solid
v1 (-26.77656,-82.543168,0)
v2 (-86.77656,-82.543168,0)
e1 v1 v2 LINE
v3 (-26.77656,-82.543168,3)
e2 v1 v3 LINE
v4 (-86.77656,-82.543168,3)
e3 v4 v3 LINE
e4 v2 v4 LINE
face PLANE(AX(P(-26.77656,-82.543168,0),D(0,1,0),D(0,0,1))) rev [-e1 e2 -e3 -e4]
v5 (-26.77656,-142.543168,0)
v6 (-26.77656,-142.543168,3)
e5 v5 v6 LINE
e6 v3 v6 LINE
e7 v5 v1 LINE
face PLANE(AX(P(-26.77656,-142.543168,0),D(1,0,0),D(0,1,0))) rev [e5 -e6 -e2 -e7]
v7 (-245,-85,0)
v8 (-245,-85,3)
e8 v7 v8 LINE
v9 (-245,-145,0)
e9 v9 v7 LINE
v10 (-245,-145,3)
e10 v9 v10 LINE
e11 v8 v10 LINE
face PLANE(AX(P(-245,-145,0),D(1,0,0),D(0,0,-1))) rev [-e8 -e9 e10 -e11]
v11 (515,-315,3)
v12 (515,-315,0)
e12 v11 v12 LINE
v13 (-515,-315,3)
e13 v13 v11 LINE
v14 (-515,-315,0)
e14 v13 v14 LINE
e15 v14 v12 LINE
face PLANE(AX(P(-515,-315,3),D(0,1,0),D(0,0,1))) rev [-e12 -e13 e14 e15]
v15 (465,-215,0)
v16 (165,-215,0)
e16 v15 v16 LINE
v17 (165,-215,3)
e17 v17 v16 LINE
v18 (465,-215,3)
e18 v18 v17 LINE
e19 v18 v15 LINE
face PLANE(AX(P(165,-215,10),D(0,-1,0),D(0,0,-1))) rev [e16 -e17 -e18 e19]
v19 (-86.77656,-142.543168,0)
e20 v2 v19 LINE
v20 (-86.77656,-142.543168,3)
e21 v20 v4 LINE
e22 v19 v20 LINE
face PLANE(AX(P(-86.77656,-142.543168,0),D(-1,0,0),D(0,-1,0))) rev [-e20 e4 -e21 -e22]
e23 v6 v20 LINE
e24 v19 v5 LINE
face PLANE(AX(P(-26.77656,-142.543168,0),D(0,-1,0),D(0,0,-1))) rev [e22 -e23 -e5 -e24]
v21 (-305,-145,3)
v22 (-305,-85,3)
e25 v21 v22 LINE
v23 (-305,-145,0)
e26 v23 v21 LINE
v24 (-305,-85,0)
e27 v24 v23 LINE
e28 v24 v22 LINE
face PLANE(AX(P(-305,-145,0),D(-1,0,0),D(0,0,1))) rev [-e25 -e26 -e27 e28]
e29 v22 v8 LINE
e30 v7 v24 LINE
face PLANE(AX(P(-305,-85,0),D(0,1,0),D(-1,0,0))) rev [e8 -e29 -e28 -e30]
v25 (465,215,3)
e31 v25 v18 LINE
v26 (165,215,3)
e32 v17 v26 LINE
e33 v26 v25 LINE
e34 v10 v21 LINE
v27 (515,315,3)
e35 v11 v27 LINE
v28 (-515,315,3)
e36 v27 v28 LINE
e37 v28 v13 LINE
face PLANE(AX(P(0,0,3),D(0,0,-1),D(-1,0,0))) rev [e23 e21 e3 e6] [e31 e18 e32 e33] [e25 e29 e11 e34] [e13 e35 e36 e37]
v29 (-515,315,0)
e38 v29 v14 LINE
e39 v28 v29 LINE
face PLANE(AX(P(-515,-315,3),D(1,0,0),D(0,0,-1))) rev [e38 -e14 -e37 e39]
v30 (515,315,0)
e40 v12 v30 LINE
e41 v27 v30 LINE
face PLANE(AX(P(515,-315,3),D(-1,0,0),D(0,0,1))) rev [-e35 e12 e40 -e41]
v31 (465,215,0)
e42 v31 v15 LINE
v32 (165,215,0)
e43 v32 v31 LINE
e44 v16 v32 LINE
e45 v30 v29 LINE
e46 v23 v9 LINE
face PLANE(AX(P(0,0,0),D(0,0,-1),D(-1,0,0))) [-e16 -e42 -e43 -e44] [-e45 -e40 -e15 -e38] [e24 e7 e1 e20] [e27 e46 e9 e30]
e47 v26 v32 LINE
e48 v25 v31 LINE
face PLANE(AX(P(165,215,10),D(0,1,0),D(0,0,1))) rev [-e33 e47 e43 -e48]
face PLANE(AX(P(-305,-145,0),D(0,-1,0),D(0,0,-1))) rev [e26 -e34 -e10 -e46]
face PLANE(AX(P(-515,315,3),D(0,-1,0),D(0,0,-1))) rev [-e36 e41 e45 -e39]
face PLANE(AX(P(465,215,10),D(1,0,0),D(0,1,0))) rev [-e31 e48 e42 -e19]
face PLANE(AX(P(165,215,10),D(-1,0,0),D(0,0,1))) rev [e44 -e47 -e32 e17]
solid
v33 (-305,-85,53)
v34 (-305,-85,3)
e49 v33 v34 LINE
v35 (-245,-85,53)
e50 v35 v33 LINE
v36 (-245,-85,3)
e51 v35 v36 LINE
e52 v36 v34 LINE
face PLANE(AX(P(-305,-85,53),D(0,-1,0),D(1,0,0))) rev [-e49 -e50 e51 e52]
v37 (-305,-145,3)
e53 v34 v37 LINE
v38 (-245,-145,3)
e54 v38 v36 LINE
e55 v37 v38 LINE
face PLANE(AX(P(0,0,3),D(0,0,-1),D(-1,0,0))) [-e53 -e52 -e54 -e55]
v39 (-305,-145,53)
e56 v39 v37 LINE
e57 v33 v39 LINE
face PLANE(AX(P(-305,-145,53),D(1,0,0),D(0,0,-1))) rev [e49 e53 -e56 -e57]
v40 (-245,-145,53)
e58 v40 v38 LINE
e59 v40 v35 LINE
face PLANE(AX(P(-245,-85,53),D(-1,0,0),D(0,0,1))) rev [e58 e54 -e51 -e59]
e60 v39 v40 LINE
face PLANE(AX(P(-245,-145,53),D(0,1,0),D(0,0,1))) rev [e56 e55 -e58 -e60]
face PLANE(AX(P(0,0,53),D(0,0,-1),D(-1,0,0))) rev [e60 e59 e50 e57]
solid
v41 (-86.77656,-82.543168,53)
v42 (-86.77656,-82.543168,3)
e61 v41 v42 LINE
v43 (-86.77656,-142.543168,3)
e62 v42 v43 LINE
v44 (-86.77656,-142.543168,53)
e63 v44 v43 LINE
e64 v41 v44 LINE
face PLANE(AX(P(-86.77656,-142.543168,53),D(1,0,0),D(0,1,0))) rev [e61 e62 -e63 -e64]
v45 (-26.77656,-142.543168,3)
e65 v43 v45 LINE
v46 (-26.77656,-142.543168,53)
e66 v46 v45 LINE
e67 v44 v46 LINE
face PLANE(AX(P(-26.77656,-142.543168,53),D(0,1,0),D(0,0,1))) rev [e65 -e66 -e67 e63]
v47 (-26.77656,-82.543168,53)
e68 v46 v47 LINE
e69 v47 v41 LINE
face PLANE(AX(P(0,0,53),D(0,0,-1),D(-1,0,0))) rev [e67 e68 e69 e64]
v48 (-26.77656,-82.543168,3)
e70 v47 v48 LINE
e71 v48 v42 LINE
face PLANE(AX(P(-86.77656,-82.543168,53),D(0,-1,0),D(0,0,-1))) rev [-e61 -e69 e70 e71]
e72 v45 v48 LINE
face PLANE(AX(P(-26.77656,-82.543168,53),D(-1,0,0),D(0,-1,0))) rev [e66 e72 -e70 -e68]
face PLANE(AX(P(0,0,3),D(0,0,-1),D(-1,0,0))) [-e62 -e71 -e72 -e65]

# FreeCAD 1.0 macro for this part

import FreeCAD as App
import Part
import Sketcher
Q = App.Units.Quantity

doc = App.newDocument("Part")
body = doc.addObject("PartDesign::Body", "Body")

# Sketch on XY plane
sketch1 = body.newObject("Sketcher::SketchObject", "Sketch")
sketch1.AttachmentSupport = (doc.getObject("XY_Plane"), [""])
sketch1.MapMode = "FlatFace"
sketch1.addGeometry([
    Part.LineSegment(App.Vector(-515, 315, 0), App.Vector(-515, -315, 0)),
    Part.LineSegment(App.Vector(-515, -315, 0), App.Vector(515, -315, 0)),
    Part.LineSegment(App.Vector(515, -315, 0), App.Vector(515, 315, 0)),
    Part.LineSegment(App.Vector(515, 315, 0), App.Vector(-515, 315, 0)),
], False)
sketch1.addConstraint([
    Sketcher.Constraint("Coincident", 0, 2, 1, 1),
    Sketcher.Constraint("Coincident", 1, 2, 2, 1),
    Sketcher.Constraint("Coincident", 2, 2, 3, 1),
    Sketcher.Constraint("Coincident", 3, 2, 0, 1),
    Sketcher.Constraint("Vertical", 0),
    Sketcher.Constraint("Horizontal", 1),
    Sketcher.Constraint("Vertical", 2),
    Sketcher.Constraint("Horizontal", 3),
    Sketcher.Constraint("Symmetric", 0, 2, 2, 2, -1, 1),
    Sketcher.Constraint("DistanceX", 1, 1, 1, 2, Q("1030 mm")),
    Sketcher.Constraint("DistanceY", 0, 2, 0, 1, Q("630 mm")),
])
pad1 = body.newObject("PartDesign::Pad", "Pad")
pad1.Profile = sketch1
pad1.Length = 3

# Sketch on XY plane
sketch2 = body.newObject("Sketcher::SketchObject", "Sketch001")
sketch2.AttachmentSupport = (doc.getObject("XY_Plane"), [""])
sketch2.MapMode = "FlatFace"
sketch2.addGeometry([
    Part.LineSegment(App.Vector(465, 215, 0), App.Vector(465, -215, 0)),
    Part.LineSegment(App.Vector(465, -215, 0), App.Vector(165, -215, 0)),
    Part.LineSegment(App.Vector(165, -215, 0), App.Vector(165, 215, 0)),
    Part.LineSegment(App.Vector(165, 215, 0), App.Vector(465, 215, 0)),
], False)
sketch2.addConstraint([
    Sketcher.Constraint("Coincident", 0, 2, 1, 1),
    Sketcher.Constraint("Coincident", 1, 2, 2, 1),
    Sketcher.Constraint("Coincident", 2, 2, 3, 1),
    Sketcher.Constraint("Coincident", 3, 2, 0, 1),
    Sketcher.Constraint("Vertical", 0),
    Sketcher.Constraint("Horizontal", 1),
    Sketcher.Constraint("Vertical", 2),
    Sketcher.Constraint("Horizontal", 3),
    Sketcher.Constraint("DistanceX", 1, 2, 1, 1, Q("300 mm")),
    Sketcher.Constraint("DistanceY", 0, 2, 0, 1, Q("430 mm")),
    Sketcher.Constraint("DistanceX", -1, 1, 0, 2, Q("465 mm")),
    Sketcher.Constraint("DistanceY", 0, 2, -1, 1, Q("215 mm")),
])
pocket1 = body.newObject("PartDesign::Pocket", "Pocket")
pocket1.Profile = sketch2
pocket1.Length = 10
pocket1.Reversed = True

# Sketch on XY plane
sketch3 = body.newObject("Sketcher::SketchObject", "Sketch002")
sketch3.AttachmentSupport = (doc.getObject("XY_Plane"), [""])
sketch3.MapMode = "FlatFace"
sketch3.AttachmentOffset = App.Placement(App.Vector(0, 0, 3), App.Rotation())
sketch3.addGeometry([
    Part.LineSegment(App.Vector(-305, -85, 0), App.Vector(-305, -145, 0)),  # 0
    Part.LineSegment(App.Vector(-305, -145, 0), App.Vector(-245, -145, 0)),  # 1
    Part.LineSegment(App.Vector(-245, -145, 0), App.Vector(-245, -85, 0)),  # 2
    Part.LineSegment(App.Vector(-245, -85, 0), App.Vector(-305, -85, 0)),  # 3
    Part.LineSegment(App.Vector(-87, -83, 0), App.Vector(-87, -143, 0)),  # 4
    Part.LineSegment(App.Vector(-87, -143, 0), App.Vector(-27, -143, 0)),  # 5
    Part.LineSegment(App.Vector(-27, -143, 0), App.Vector(-27, -83, 0)),  # 6
    Part.LineSegment(App.Vector(-27, -83, 0), App.Vector(-87, -83, 0)),  # 7
], False)
sketch3.addConstraint([
    Sketcher.Constraint("Coincident", 0, 2, 1, 1),
    Sketcher.Constraint("Coincident", 1, 2, 2, 1),
    Sketcher.Constraint("Coincident", 2, 2, 3, 1),
    Sketcher.Constraint("Coincident", 3, 2, 0, 1),
    Sketcher.Constraint("Coincident", 4, 2, 5, 1),
    Sketcher.Constraint("Coincident", 5, 2, 6, 1),
    Sketcher.Constraint("Coincident", 6, 2, 7, 1),
    Sketcher.Constraint("Coincident", 7, 2, 4, 1),
    Sketcher.Constraint("Vertical", 0),
    Sketcher.Constraint("Horizontal", 1),
    Sketcher.Constraint("Vertical", 2),
    Sketcher.Constraint("Horizontal", 3),
    Sketcher.Constraint("Vertical", 4),
    Sketcher.Constraint("Horizontal", 5),
    Sketcher.Constraint("Vertical", 6),
    Sketcher.Constraint("Horizontal", 7),
    Sketcher.Constraint("Equal", 3, 5),
    Sketcher.Constraint("Equal", 7, 0),
    Sketcher.Constraint("Equal", 2, 4),
    Sketcher.Constraint("DistanceX", 1, 1, 1, 2, Q("60 mm")),
    Sketcher.Constraint("DistanceX", 0, 2, -1, 1, Q("305 mm")),
    Sketcher.Constraint("DistanceY", 0, 2, -1, 1, Q("145 mm")),
    Sketcher.Constraint("DistanceX", 4, 2, -1, 1, Q("86.77656 mm")),
    Sketcher.Constraint("DistanceY", 4, 2, -1, 1, Q("142.543168 mm")),
])
pocket2 = body.newObject("PartDesign::Pocket", "Pocket001")
pocket2.Profile = sketch3
pocket2.Type = "ThroughAll"
pocket2.Midplane = True
body2 = doc.addObject("PartDesign::Body", "Body001")

# Sketch on XY plane
sketch4 = body2.newObject("Sketcher::SketchObject", "Sketch003")
sketch4.AttachmentSupport = (doc.getObject("XY_Plane001"), [""])
sketch4.MapMode = "FlatFace"
sketch4.AttachmentOffset = App.Placement(App.Vector(0, 0, 3), App.Rotation())
sketch4.addGeometry([
    Part.LineSegment(App.Vector(-305, -85, 0), App.Vector(-305, -145, 0)),
    Part.LineSegment(App.Vector(-305, -145, 0), App.Vector(-245, -145, 0)),
    Part.LineSegment(App.Vector(-245, -145, 0), App.Vector(-245, -85, 0)),
    Part.LineSegment(App.Vector(-245, -85, 0), App.Vector(-305, -85, 0)),
], False)
sketch4.addConstraint([
    Sketcher.Constraint("Coincident", 0, 2, 1, 1),
    Sketcher.Constraint("Coincident", 1, 2, 2, 1),
    Sketcher.Constraint("Coincident", 2, 2, 3, 1),
    Sketcher.Constraint("Coincident", 3, 2, 0, 1),
    Sketcher.Constraint("Vertical", 0),
    Sketcher.Constraint("Horizontal", 1),
    Sketcher.Constraint("Vertical", 2),
    Sketcher.Constraint("Horizontal", 3),
    Sketcher.Constraint("Equal", 3, 0),
    Sketcher.Constraint("DistanceX", 1, 1, 1, 2, Q("60 mm")),
    Sketcher.Constraint("DistanceX", 0, 2, -1, 1, Q("305 mm")),
    Sketcher.Constraint("DistanceY", 0, 2, -1, 1, Q("145 mm")),
])
pad2 = body2.newObject("PartDesign::Pad", "Pad001")
pad2.Profile = sketch4
pad2.Length = 50
body3 = doc.addObject("PartDesign::Body", "Body002")

# Sketch on XY plane
sketch5 = body3.newObject("Sketcher::SketchObject", "Sketch004")
sketch5.AttachmentSupport = (doc.getObject("XY_Plane002"), [""])
sketch5.MapMode = "FlatFace"
sketch5.AttachmentOffset = App.Placement(App.Vector(0, 0, 3), App.Rotation())
sketch5.addGeometry([
    Part.LineSegment(App.Vector(-87, -83, 0), App.Vector(-87, -143, 0)),
    Part.LineSegment(App.Vector(-87, -143, 0), App.Vector(-27, -143, 0)),
    Part.LineSegment(App.Vector(-27, -143, 0), App.Vector(-27, -83, 0)),
    Part.LineSegment(App.Vector(-27, -83, 0), App.Vector(-87, -83, 0)),
], False)
sketch5.addConstraint([
    Sketcher.Constraint("Coincident", 0, 2, 1, 1),
    Sketcher.Constraint("Coincident", 1, 2, 2, 1),
    Sketcher.Constraint("Coincident", 2, 2, 3, 1),
    Sketcher.Constraint("Coincident", 3, 2, 0, 1),
    Sketcher.Constraint("Vertical", 0),
    Sketcher.Constraint("Horizontal", 1),
    Sketcher.Constraint("Vertical", 2),
    Sketcher.Constraint("Horizontal", 3),
    Sketcher.Constraint("Equal", 3, 0),
    Sketcher.Constraint("DistanceX", 1, 1, 1, 2, Q("60 mm")),
    Sketcher.Constraint("DistanceX", 0, 2, -1, 1, Q("86.77656 mm")),
    Sketcher.Constraint("DistanceY", 0, 2, -1, 1, Q("142.543168 mm")),
])
pad3 = body3.newObject("PartDesign::Pad", "Pad002")
pad3.Profile = sketch5
pad3.Length = 50

doc.recompute()
